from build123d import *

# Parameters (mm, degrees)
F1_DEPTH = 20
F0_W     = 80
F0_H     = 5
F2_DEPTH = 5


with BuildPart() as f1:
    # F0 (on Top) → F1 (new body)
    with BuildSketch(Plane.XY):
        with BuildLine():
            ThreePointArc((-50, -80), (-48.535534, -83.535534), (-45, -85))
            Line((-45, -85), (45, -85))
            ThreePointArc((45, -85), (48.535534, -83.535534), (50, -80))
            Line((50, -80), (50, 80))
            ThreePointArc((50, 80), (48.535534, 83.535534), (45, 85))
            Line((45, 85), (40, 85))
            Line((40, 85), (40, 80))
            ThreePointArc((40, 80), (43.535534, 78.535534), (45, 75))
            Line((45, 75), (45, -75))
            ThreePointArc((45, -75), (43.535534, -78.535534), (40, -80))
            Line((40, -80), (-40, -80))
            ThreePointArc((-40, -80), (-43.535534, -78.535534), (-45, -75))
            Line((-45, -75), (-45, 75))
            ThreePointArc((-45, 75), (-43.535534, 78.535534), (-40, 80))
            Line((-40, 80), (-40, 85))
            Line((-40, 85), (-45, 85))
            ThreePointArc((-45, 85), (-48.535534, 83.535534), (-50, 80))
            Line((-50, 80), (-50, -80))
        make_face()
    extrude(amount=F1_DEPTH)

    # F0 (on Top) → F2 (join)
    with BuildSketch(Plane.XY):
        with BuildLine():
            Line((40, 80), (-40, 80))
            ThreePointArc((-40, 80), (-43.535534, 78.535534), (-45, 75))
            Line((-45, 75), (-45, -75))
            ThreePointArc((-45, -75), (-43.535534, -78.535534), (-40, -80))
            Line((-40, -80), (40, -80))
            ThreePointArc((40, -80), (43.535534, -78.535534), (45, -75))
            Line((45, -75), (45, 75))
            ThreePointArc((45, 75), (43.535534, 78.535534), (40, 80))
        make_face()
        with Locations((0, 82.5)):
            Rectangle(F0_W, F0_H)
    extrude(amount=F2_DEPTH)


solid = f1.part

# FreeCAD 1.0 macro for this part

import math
import FreeCAD as App
import Part
import Sketcher
from FreeCAD import Vector

doc = App.newDocument("Part")
body = doc.addObject("PartDesign::Body", "Body")

sketch1 = body.newObject("Sketcher::SketchObject", "Sketch")
sketch1.AttachmentSupport = (doc.getObject("XY_Plane"), [""])
sketch1.MapMode = "FlatFace"
sketch1.addGeometry([
    Part.ArcOfCircle(Part.Circle(Vector(-45, -80, 0), Vector(0, 0, 1), 5), math.radians(179.999996), math.radians(270.000004)),
    Part.LineSegment(Vector(-45, -85, 0), Vector(45, -85, 0)),
    Part.ArcOfCircle(Part.Circle(Vector(45, -80, 0), Vector(0, 0, 1), 5), math.radians(-90.000004), math.radians(0.000004)),
    Part.LineSegment(Vector(50, -80, 0), Vector(50, 80, 0)),
    Part.ArcOfCircle(Part.Circle(Vector(45, 80, 0), Vector(0, 0, 1), 5), math.radians(-0.000004), math.radians(90.000004)),
    Part.LineSegment(Vector(45, 85, 0), Vector(40, 85, 0)),
    Part.LineSegment(Vector(40, 85, 0), Vector(40, 80, 0)),
    Part.ArcOfCircle(Part.Circle(Vector(40, 75, 0), Vector(0, 0, 1), 5), math.radians(-0.000004), math.radians(90.000004)),
    Part.LineSegment(Vector(45, 75, 0), Vector(45, -75, 0)),
    Part.ArcOfCircle(Part.Circle(Vector(40, -75, 0), Vector(0, 0, 1), 5), math.radians(-90.000004), math.radians(0.000004)),
    Part.LineSegment(Vector(40, -80, 0), Vector(-40, -80, 0)),
    Part.ArcOfCircle(Part.Circle(Vector(-40, -75, 0), Vector(0, 0, 1), 5), math.radians(179.999996), math.radians(270.000004)),
    Part.LineSegment(Vector(-45, -75, 0), Vector(-45, 75, 0)),
    Part.ArcOfCircle(Part.Circle(Vector(-40, 75, 0), Vector(0, 0, 1), 5), math.radians(89.999996), math.radians(180.000004)),
    Part.LineSegment(Vector(-40, 80, 0), Vector(-40, 85, 0)),
    Part.LineSegment(Vector(-40, 85, 0), Vector(-45, 85, 0)),
    Part.ArcOfCircle(Part.Circle(Vector(-45, 80, 0), Vector(0, 0, 1), 5), math.radians(89.999996), math.radians(180.000004)),
    Part.LineSegment(Vector(-50, 80, 0), Vector(-50, -80, 0)),
], False)
sketch1.addConstraint([
    Sketcher.Constraint("Tangent", 0, 2, 1, 1),
    Sketcher.Constraint("Tangent", 1, 2, 2, 1),
    Sketcher.Constraint("Tangent", 2, 2, 3, 1),
    Sketcher.Constraint("Tangent", 3, 2, 4, 1),
    Sketcher.Constraint("Tangent", 4, 2, 5, 1),
    Sketcher.Constraint("Coincident", 5, 2, 6, 1),
    Sketcher.Constraint("Coincident", 6, 2, 7, 2),
    Sketcher.Constraint("Tangent", 7, 1, 8, 1),
    Sketcher.Constraint("Tangent", 8, 2, 9, 2),
    Sketcher.Constraint("Tangent", 9, 1, 10, 1),
    Sketcher.Constraint("Tangent", 10, 2, 11, 2),
    Sketcher.Constraint("Tangent", 11, 1, 12, 1),
    Sketcher.Constraint("Tangent", 12, 2, 13, 2),
    Sketcher.Constraint("Coincident", 13, 1, 14, 1),
    Sketcher.Constraint("Coincident", 14, 2, 15, 1),
    Sketcher.Constraint("Tangent", 15, 2, 16, 1),
    Sketcher.Constraint("Tangent", 16, 2, 17, 1),
    Sketcher.Constraint("Tangent", 17, 2, 0, 1),
    Sketcher.Constraint("Horizontal", 1),
    Sketcher.Constraint("Vertical", 3),
    Sketcher.Constraint("Horizontal", 5),
    Sketcher.Constraint("Vertical", 6),
    Sketcher.Constraint("Vertical", 8),
    Sketcher.Constraint("Horizontal", 10),
    Sketcher.Constraint("Vertical", 12),
    Sketcher.Constraint("Vertical", 14),
    Sketcher.Constraint("Horizontal", 15),
    Sketcher.Constraint("Vertical", 17),
    Sketcher.Constraint("Equal", 0, 2),
    Sketcher.Constraint("Equal", 2, 4),
    Sketcher.Constraint("Equal", 4, 7),
    Sketcher.Constraint("Equal", 7, 9),
    Sketcher.Constraint("Equal", 9, 11),
    Sketcher.Constraint("Equal", 11, 13),
    Sketcher.Constraint("Equal", 13, 16),
    Sketcher.Constraint("Symmetric", 0, 3, 4, 3, -1, 1),
    Sketcher.Constraint("Symmetric", 7, 3, 11, 3, -1, 1),
    Sketcher.Constraint("Symmetric", 9, 1, 13, 1, -1, 1),
    Sketcher.Constraint("Symmetric", 5, 2, 14, 2, -2),
    Sketcher.Constraint("Horizontal", 3, 2, 6, 2),
    Sketcher.Constraint("Vertical", 4, 2, 7, 1),
    Sketcher.Constraint("Radius", 0, 5.0),
    Sketcher.Constraint("DistanceX", 1, 1, 1, 2, 90.0),
    Sketcher.Constraint("DistanceY", 3, 1, 3, 2, 160.0),
])
pad1 = body.newObject("PartDesign::Pad", "Pad")
pad1.Profile = sketch1
pad1.Length = 20

sketch2 = body.newObject("Sketcher::SketchObject", "Sketch001")
sketch2.AttachmentSupport = (doc.getObject("XY_Plane"), [""])
sketch2.MapMode = "FlatFace"
sketch2.addGeometry([
    Part.ArcOfCircle(Part.Circle(Vector(-40, 75, 0), Vector(0, 0, 1), 5), math.radians(89.999996), math.radians(180.000004)),
    Part.LineSegment(Vector(-45, 75, 0), Vector(-45, -75, 0)),
    Part.ArcOfCircle(Part.Circle(Vector(-40, -75, 0), Vector(0, 0, 1), 5), math.radians(179.999996), math.radians(270.000004)),
    Part.LineSegment(Vector(-40, -80, 0), Vector(40, -80, 0)),
    Part.ArcOfCircle(Part.Circle(Vector(40, -75, 0), Vector(0, 0, 1), 5), math.radians(-90.000004), math.radians(0.000004)),
    Part.LineSegment(Vector(45, -75, 0), Vector(45, 75, 0)),
    Part.ArcOfCircle(Part.Circle(Vector(40, 75, 0), Vector(0, 0, 1), 5), math.radians(-0.000004), math.radians(90.000004)),
    Part.LineSegment(Vector(40, 80, 0), Vector(40, 85, 0)),
    Part.LineSegment(Vector(40, 85, 0), Vector(-40, 85, 0)),
    Part.LineSegment(Vector(-40, 85, 0), Vector(-40, 80, 0)),
], False)
sketch2.addConstraint([
    Sketcher.Constraint("Tangent", 0, 2, 1, 1),
    Sketcher.Constraint("Tangent", 1, 2, 2, 1),
    Sketcher.Constraint("Tangent", 2, 2, 3, 1),
    Sketcher.Constraint("Tangent", 3, 2, 4, 1),
    Sketcher.Constraint("Tangent", 4, 2, 5, 1),
    Sketcher.Constraint("Tangent", 5, 2, 6, 1),
    Sketcher.Constraint("Coincident", 6, 2, 7, 1),
    Sketcher.Constraint("Coincident", 7, 2, 8, 1),
    Sketcher.Constraint("Coincident", 8, 2, 9, 1),
    Sketcher.Constraint("Coincident", 9, 2, 0, 1),
    Sketcher.Constraint("Vertical", 1),
    Sketcher.Constraint("Horizontal", 3),
    Sketcher.Constraint("Vertical", 5),
    Sketcher.Constraint("Vertical", 7),
    Sketcher.Constraint("Horizontal", 8),
    Sketcher.Constraint("Vertical", 9),
    Sketcher.Constraint("Equal", 0, 2),
    Sketcher.Constraint("Equal", 2, 4),
    Sketcher.Constraint("Equal", 4, 6),
    Sketcher.Constraint("Symmetric", 0, 3, 4, 3, -1, 1),
    Sketcher.Constraint("Symmetric", 2, 2, 6, 2, -1, 1),
    Sketcher.Constraint("Vertical", 2, 2, 8, 2),
    Sketcher.Constraint("Radius", 0, 5.0),
    Sketcher.Constraint("DistanceX", 3, 1, 3, 2, 80.0),
    Sketcher.Constraint("DistanceY", 1, 2, 1, 1, 150.0),
    Sketcher.Constraint("DistanceY", 7, 1, 7, 2, 5.0),
])
pad2 = body.newObject("PartDesign::Pad", "Pad001")
pad2.Profile = sketch2
pad2.Length = 5

doc.recompute()
